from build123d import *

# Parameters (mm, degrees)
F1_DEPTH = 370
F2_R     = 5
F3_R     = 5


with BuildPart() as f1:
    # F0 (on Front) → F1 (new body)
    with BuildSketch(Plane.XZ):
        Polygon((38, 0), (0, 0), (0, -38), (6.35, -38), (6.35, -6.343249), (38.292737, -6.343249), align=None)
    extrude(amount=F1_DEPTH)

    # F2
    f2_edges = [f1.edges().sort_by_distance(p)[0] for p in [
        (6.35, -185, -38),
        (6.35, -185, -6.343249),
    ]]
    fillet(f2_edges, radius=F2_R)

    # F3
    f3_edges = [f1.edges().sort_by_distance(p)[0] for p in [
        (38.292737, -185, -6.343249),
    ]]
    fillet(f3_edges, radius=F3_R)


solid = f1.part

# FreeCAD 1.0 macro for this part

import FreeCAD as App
import Part
import Sketcher
from FreeCAD import Vector
Q = App.Units.Quantity


def edges_at(feature, points):
    """Names of the edges that pass closest to the given points."""
    edges = feature.Shape.Edges
    near = lambda p: min(range(len(edges)), key=lambda i: edges[i].distToShape(Part.Vertex(*p))[0])
    return sorted({f"Edge{near(p) + 1}" for p in points})

doc = App.newDocument("Part")
body = doc.addObject("PartDesign::Body", "Body")

sketch1 = doc.addObject("Sketcher::SketchObject", "Sketch")
body.addObject(sketch1)
sketch1.AttachmentSupport = (doc.XZ_Plane, [""])
sketch1.MapMode = "FlatFace"
sketch1.addGeometry([
    Part.LineSegment(Vector(38, 0, 0), Vector(0, 0, 0)),
    Part.LineSegment(Vector(0, 0, 0), Vector(0, -38, 0)),
    Part.LineSegment(Vector(0, -38, 0), Vector(6.35, -38, 0)),
    Part.LineSegment(Vector(6.35, -38, 0), Vector(6.35, -6.343249, 0)),
    Part.LineSegment(Vector(6.35, -6.343249, 0), Vector(38.292737, -6.343249, 0)),
    Part.LineSegment(Vector(38.292737, -6.343249, 0), Vector(38, 0, 0)),
], False)
sketch1.addConstraint([
    Sketcher.Constraint("Coincident", 0, 2, 1, 1),
    Sketcher.Constraint("Coincident", 1, 2, 2, 1),
    Sketcher.Constraint("Coincident", 2, 2, 3, 1),
    Sketcher.Constraint("Coincident", 3, 2, 4, 1),
    Sketcher.Constraint("Coincident", 4, 2, 5, 1),
    Sketcher.Constraint("Coincident", 5, 2, 0, 1),
    Sketcher.Constraint("Horizontal", 0),
    Sketcher.Constraint("Vertical", 1),
    Sketcher.Constraint("Horizontal", 2),
    Sketcher.Constraint("Vertical", 3),
    Sketcher.Constraint("Horizontal", 4),
    Sketcher.Constraint("Coincident", 0, 2, -1, 1),
    Sketcher.Constraint("Equal", 0, 1),
    Sketcher.Constraint("DistanceX", 0, 2, 0, 1, Q("38 mm")),
    Sketcher.Constraint("DistanceX", 2, 1, 2, 2, Q("6.35 mm")),
    Sketcher.Constraint("Distance", 5, Q("6.35 mm")),
    Sketcher.Constraint("DistanceY", 3, 1, 3, 2, Q("31.656751 mm")),
])
pad1 = doc.addObject("PartDesign::Pad", "Pad")
body.addObject(pad1)
pad1.Profile = sketch1
pad1.Length = 370
doc.recompute()

fillet = doc.addObject("PartDesign::Fillet", "Fillet")
body.addObject(fillet)
fillet.Base = (pad1, edges_at(pad1, [(6.35, -185, -38), (6.35, -185, -6.343)]))
fillet.Radius = 5
doc.recompute()

fillet2 = doc.addObject("PartDesign::Fillet", "Fillet001")
body.addObject(fillet2)
fillet2.Base = (fillet, edges_at(fillet, [(38.293, -185, -6.343)]))
fillet2.Radius = 5

doc.recompute()
